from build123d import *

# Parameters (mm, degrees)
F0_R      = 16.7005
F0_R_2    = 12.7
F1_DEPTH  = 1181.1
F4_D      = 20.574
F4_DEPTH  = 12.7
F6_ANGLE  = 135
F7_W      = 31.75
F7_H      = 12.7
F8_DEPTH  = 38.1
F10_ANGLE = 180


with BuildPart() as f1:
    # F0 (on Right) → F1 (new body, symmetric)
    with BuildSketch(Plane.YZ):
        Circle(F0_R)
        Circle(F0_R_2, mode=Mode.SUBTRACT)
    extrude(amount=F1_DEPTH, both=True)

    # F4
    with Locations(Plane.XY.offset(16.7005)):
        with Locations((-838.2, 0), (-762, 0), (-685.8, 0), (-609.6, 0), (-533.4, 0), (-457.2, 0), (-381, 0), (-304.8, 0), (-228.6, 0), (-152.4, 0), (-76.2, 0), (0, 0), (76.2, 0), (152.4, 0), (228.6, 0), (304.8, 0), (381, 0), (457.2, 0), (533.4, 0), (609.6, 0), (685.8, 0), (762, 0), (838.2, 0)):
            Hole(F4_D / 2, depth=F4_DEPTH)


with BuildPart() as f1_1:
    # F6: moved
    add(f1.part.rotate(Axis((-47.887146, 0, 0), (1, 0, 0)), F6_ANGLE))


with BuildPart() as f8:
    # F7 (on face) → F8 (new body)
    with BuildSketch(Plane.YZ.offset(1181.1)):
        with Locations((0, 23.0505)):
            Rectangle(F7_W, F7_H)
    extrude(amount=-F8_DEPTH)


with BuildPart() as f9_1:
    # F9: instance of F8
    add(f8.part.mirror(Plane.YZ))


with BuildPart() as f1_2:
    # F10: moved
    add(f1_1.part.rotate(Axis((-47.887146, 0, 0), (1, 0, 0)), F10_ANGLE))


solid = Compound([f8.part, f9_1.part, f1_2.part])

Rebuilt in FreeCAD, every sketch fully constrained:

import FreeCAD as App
import Part
import Sketcher
Q = App.Units.Quantity

doc = App.newDocument("Part")
body = doc.addObject("PartDesign::Body", "Body")

# Sketch on YZ plane
sketch1 = body.newObject("Sketcher::SketchObject", "Sketch")
sketch1.AttachmentSupport = (doc.getObject("YZ_Plane"), [""])
sketch1.MapMode = "FlatFace"
sketch1.addGeometry([
    Part.Circle(App.Vector(0, 0, 0), App.Vector(0, 0, 1), 17),
    Part.Circle(App.Vector(0, 0, 0), App.Vector(0, 0, 1), 13),
], False)
sketch1.addConstraint([
    Sketcher.Constraint("Coincident", 0, 3, -1, 1),
    Sketcher.Constraint("Coincident", 1, 3, -1, 1),
    Sketcher.Constraint("Diameter", 1, Q("1 in")),
    Sketcher.Constraint("Diameter", 0, Q("1.315 in")),
])
pad1 = body.newObject("PartDesign::Pad", "Pad")
pad1.Profile = sketch1
pad1.Length = Q("93 in")
pad1.Midplane = True

# Sketch on XY plane
sketch2 = body.newObject("Sketcher::SketchObject", "Sketch001")
sketch2.AttachmentSupport = (doc.getObject("XY_Plane"), [""])
sketch2.MapMode = "FlatFace"
sketch2.AttachmentOffset = App.Placement(App.Vector(0, 0, 0.6575 * 25.4), App.Rotation())
sketch2.addGeometry([
    Part.Circle(App.Vector(-838, 0, 0), App.Vector(0, 0, 1), 10),  # 0
    Part.Circle(App.Vector(-762, 0, 0), App.Vector(0, 0, 1), 10),  # 1
    Part.Circle(App.Vector(-686, 0, 0), App.Vector(0, 0, 1), 10),  # 2
    Part.Circle(App.Vector(-610, 0, 0), App.Vector(0, 0, 1), 10),  # 3
    Part.Circle(App.Vector(-533, 0, 0), App.Vector(0, 0, 1), 10),  # 4
    Part.Circle(App.Vector(-457, 0, 0), App.Vector(0, 0, 1), 10),  # 5
    Part.Circle(App.Vector(-381, 0, 0), App.Vector(0, 0, 1), 10),  # 6
    Part.Circle(App.Vector(-305, 0, 0), App.Vector(0, 0, 1), 10),  # 7
    Part.Circle(App.Vector(-229, 0, 0), App.Vector(0, 0, 1), 10),  # 8
    Part.Circle(App.Vector(-152, 0, 0), App.Vector(0, 0, 1), 10),  # 9
    Part.Circle(App.Vector(-76, 0, 0), App.Vector(0, 0, 1), 10),  # 10
    Part.Circle(App.Vector(0, 0, 0), App.Vector(0, 0, 1), 10),  # 11
    Part.Circle(App.Vector(76, 0, 0), App.Vector(0, 0, 1), 10),  # 12
    Part.Circle(App.Vector(152, 0, 0), App.Vector(0, 0, 1), 10),  # 13
    Part.Circle(App.Vector(229, 0, 0), App.Vector(0, 0, 1), 10),  # 14
    Part.Circle(App.Vector(305, 0, 0), App.Vector(0, 0, 1), 10),  # 15
    Part.Circle(App.Vector(381, 0, 0), App.Vector(0, 0, 1), 10),  # 16
    Part.Circle(App.Vector(457, 0, 0), App.Vector(0, 0, 1), 10),  # 17
    Part.Circle(App.Vector(533, 0, 0), App.Vector(0, 0, 1), 10),  # 18
    Part.Circle(App.Vector(610, 0, 0), App.Vector(0, 0, 1), 10),  # 19
    Part.Circle(App.Vector(686, 0, 0), App.Vector(0, 0, 1), 10),  # 20
    Part.Circle(App.Vector(762, 0, 0), App.Vector(0, 0, 1), 10),  # 21
    Part.Circle(App.Vector(838, 0, 0), App.Vector(0, 0, 1), 10),  # 22
], False)
sketch2.addConstraint([
    Sketcher.Constraint("Coincident", 11, 3, -1, 1),
    Sketcher.Constraint("Equal", 0, 1),
    Sketcher.Constraint("Equal", 1, 2),
    Sketcher.Constraint("Equal", 2, 3),
    Sketcher.Constraint("Equal", 3, 4),
    Sketcher.Constraint("Equal", 4, 5),
    Sketcher.Constraint("Equal", 5, 6),
    Sketcher.Constraint("Equal", 6, 7),
    Sketcher.Constraint("Equal", 7, 8),
    Sketcher.Constraint("Equal", 8, 9),
    Sketcher.Constraint("Equal", 9, 10),
    Sketcher.Constraint("Equal", 10, 11),
    Sketcher.Constraint("Equal", 11, 12),
    Sketcher.Constraint("Equal", 12, 13),
    Sketcher.Constraint("Equal", 13, 14),
    Sketcher.Constraint("Equal", 14, 15),
    Sketcher.Constraint("Equal", 15, 16),
    Sketcher.Constraint("Equal", 16, 17),
    Sketcher.Constraint("Equal", 17, 18),
    Sketcher.Constraint("Equal", 18, 19),
    Sketcher.Constraint("Equal", 19, 20),
    Sketcher.Constraint("Equal", 20, 21),
    Sketcher.Constraint("Equal", 21, 22),
    Sketcher.Constraint("Symmetric", 10, 3, 12, 3, -1, 1),
    Sketcher.Constraint("Symmetric", 9, 3, 13, 3, -1, 1),
    Sketcher.Constraint("Symmetric", 8, 3, 14, 3, -1, 1),
    Sketcher.Constraint("Symmetric", 7, 3, 15, 3, -1, 1),
    Sketcher.Constraint("Symmetric", 6, 3, 16, 3, -1, 1),
    Sketcher.Constraint("Symmetric", 5, 3, 17, 3, -1, 1),
    Sketcher.Constraint("Symmetric", 4, 3, 18, 3, -1, 1),
    Sketcher.Constraint("Symmetric", 3, 3, 19, 3, -1, 1),
    Sketcher.Constraint("Symmetric", 2, 3, 20, 3, -1, 1),
    Sketcher.Constraint("Symmetric", 1, 3, 21, 3, -1, 1),
    Sketcher.Constraint("Symmetric", 0, 3, 22, 3, -1, 1),
    Sketcher.Constraint("PointOnObject", 0, 3, -1),
    Sketcher.Constraint("PointOnObject", 1, 3, -1),
    Sketcher.Constraint("PointOnObject", 2, 3, -1),
    Sketcher.Constraint("PointOnObject", 3, 3, -1),
    Sketcher.Constraint("PointOnObject", 4, 3, -1),
    Sketcher.Constraint("PointOnObject", 5, 3, -1),
    Sketcher.Constraint("PointOnObject", 6, 3, -1),
    Sketcher.Constraint("PointOnObject", 7, 3, -1),
    Sketcher.Constraint("PointOnObject", 8, 3, -1),
    Sketcher.Constraint("PointOnObject", 9, 3, -1),
    Sketcher.Constraint("PointOnObject", 10, 3, -1),
    Sketcher.Constraint("Diameter", 0, Q("0.81 in")),
    Sketcher.Constraint("DistanceX", 0, 3, -1, 1, Q("33 in")),
    Sketcher.Constraint("DistanceX", 1, 3, -1, 1, Q("30 in")),
    Sketcher.Constraint("DistanceX", 2, 3, -1, 1, Q("27 in")),
    Sketcher.Constraint("DistanceX", 3, 3, -1, 1, Q("24 in")),
    Sketcher.Constraint("DistanceX", 4, 3, -1, 1, Q("21 in")),
    Sketcher.Constraint("DistanceX", 5, 3, -1, 1, Q("18 in")),
    Sketcher.Constraint("DistanceX", 6, 3, -1, 1, Q("15 in")),
    Sketcher.Constraint("DistanceX", 7, 3, -1, 1, Q("12 in")),
    Sketcher.Constraint("DistanceX", 8, 3, -1, 1, Q("9 in")),
    Sketcher.Constraint("DistanceX", 9, 3, -1, 1, Q("6 in")),
    Sketcher.Constraint("DistanceX", 10, 3, -1, 1, Q("3 in")),
])
doc.recompute()
hole = body.newObject("PartDesign::Hole", "Hole")
hole.Profile = sketch2
hole.ThreadType = "None"
hole.Diameter = Q("0.81 in")
hole.DepthType = "Dimension"
hole.Depth = Q("0.5 in")
hole.DrillPoint = "Flat"
body2 = doc.addObject("PartDesign::Body", "Body001")
doc.recompute()

body.Placement = App.Placement(App.Vector(0, 0, 0), App.Rotation(App.Vector(1, 0, 0), 135))
boolean = body2.newObject("PartDesign::Boolean", "Boolean")
boolean.Type = "Fuse"
boolean.addObjects([body])
body3 = doc.addObject("PartDesign::Body", "Body002")

# Sketch on YZ plane
sketch3 = body3.newObject("Sketcher::SketchObject", "Sketch002")
sketch3.AttachmentSupport = (doc.getObject("YZ_Plane002"), [""])
sketch3.MapMode = "FlatFace"
sketch3.AttachmentOffset = App.Placement(App.Vector(0, 0, 46.5 * 25.4), App.Rotation())
sketch3.addGeometry([
    Part.LineSegment(App.Vector(-16, 29, 0), App.Vector(-16, 17, 0)),
    Part.LineSegment(App.Vector(-16, 17, 0), App.Vector(16, 17, 0)),
    Part.LineSegment(App.Vector(16, 17, 0), App.Vector(16, 29, 0)),
    Part.LineSegment(App.Vector(16, 29, 0), App.Vector(-16, 29, 0)),
], False)
sketch3.addConstraint([
    Sketcher.Constraint("Coincident", 0, 2, 1, 1),
    Sketcher.Constraint("Coincident", 1, 2, 2, 1),
    Sketcher.Constraint("Coincident", 2, 2, 3, 1),
    Sketcher.Constraint("Coincident", 3, 2, 0, 1),
    Sketcher.Constraint("Vertical", 0),
    Sketcher.Constraint("Horizontal", 1),
    Sketcher.Constraint("Vertical", 2),
    Sketcher.Constraint("Horizontal", 3),
    Sketcher.Constraint("DistanceY", 0, 2, 0, 1, Q("0.5 in")),
    Sketcher.Constraint("DistanceX", 1, 1, 1, 2, Q("1.25 in")),
    Sketcher.Constraint("DistanceX", 0, 2, -1, 1, Q("0.625 in")),
    Sketcher.Constraint("DistanceY", -1, 1, 0, 2, Q("0.6575 in")),
])
pad2 = body3.newObject("PartDesign::Pad", "Pad001")
pad2.Profile = sketch3
pad2.Length = Q("1.5 in")
pad2.Reversed = True
body4 = doc.addObject("PartDesign::Body", "Body003")
doc.recompute()

mirroring = doc.addObject("Part::Mirroring", "Mirroring")
mirroring.Source = body3
mirroring.Base = App.Vector(0, 0, 0)
mirroring.Normal = App.Vector(1, 0, 0)
body4.BaseFeature = mirroring
doc.recompute()
body5 = doc.addObject("PartDesign::Body", "Body004")
doc.recompute()

body2.Placement = App.Placement(App.Vector(0, 0, 0), App.Rotation(App.Vector(1, 0, 0), 180))
boolean2 = body5.newObject("PartDesign::Boolean", "Boolean001")
boolean2.Type = "Fuse"
boolean2.addObjects([body2])
mirroring.Visibility = False

doc.recompute()
